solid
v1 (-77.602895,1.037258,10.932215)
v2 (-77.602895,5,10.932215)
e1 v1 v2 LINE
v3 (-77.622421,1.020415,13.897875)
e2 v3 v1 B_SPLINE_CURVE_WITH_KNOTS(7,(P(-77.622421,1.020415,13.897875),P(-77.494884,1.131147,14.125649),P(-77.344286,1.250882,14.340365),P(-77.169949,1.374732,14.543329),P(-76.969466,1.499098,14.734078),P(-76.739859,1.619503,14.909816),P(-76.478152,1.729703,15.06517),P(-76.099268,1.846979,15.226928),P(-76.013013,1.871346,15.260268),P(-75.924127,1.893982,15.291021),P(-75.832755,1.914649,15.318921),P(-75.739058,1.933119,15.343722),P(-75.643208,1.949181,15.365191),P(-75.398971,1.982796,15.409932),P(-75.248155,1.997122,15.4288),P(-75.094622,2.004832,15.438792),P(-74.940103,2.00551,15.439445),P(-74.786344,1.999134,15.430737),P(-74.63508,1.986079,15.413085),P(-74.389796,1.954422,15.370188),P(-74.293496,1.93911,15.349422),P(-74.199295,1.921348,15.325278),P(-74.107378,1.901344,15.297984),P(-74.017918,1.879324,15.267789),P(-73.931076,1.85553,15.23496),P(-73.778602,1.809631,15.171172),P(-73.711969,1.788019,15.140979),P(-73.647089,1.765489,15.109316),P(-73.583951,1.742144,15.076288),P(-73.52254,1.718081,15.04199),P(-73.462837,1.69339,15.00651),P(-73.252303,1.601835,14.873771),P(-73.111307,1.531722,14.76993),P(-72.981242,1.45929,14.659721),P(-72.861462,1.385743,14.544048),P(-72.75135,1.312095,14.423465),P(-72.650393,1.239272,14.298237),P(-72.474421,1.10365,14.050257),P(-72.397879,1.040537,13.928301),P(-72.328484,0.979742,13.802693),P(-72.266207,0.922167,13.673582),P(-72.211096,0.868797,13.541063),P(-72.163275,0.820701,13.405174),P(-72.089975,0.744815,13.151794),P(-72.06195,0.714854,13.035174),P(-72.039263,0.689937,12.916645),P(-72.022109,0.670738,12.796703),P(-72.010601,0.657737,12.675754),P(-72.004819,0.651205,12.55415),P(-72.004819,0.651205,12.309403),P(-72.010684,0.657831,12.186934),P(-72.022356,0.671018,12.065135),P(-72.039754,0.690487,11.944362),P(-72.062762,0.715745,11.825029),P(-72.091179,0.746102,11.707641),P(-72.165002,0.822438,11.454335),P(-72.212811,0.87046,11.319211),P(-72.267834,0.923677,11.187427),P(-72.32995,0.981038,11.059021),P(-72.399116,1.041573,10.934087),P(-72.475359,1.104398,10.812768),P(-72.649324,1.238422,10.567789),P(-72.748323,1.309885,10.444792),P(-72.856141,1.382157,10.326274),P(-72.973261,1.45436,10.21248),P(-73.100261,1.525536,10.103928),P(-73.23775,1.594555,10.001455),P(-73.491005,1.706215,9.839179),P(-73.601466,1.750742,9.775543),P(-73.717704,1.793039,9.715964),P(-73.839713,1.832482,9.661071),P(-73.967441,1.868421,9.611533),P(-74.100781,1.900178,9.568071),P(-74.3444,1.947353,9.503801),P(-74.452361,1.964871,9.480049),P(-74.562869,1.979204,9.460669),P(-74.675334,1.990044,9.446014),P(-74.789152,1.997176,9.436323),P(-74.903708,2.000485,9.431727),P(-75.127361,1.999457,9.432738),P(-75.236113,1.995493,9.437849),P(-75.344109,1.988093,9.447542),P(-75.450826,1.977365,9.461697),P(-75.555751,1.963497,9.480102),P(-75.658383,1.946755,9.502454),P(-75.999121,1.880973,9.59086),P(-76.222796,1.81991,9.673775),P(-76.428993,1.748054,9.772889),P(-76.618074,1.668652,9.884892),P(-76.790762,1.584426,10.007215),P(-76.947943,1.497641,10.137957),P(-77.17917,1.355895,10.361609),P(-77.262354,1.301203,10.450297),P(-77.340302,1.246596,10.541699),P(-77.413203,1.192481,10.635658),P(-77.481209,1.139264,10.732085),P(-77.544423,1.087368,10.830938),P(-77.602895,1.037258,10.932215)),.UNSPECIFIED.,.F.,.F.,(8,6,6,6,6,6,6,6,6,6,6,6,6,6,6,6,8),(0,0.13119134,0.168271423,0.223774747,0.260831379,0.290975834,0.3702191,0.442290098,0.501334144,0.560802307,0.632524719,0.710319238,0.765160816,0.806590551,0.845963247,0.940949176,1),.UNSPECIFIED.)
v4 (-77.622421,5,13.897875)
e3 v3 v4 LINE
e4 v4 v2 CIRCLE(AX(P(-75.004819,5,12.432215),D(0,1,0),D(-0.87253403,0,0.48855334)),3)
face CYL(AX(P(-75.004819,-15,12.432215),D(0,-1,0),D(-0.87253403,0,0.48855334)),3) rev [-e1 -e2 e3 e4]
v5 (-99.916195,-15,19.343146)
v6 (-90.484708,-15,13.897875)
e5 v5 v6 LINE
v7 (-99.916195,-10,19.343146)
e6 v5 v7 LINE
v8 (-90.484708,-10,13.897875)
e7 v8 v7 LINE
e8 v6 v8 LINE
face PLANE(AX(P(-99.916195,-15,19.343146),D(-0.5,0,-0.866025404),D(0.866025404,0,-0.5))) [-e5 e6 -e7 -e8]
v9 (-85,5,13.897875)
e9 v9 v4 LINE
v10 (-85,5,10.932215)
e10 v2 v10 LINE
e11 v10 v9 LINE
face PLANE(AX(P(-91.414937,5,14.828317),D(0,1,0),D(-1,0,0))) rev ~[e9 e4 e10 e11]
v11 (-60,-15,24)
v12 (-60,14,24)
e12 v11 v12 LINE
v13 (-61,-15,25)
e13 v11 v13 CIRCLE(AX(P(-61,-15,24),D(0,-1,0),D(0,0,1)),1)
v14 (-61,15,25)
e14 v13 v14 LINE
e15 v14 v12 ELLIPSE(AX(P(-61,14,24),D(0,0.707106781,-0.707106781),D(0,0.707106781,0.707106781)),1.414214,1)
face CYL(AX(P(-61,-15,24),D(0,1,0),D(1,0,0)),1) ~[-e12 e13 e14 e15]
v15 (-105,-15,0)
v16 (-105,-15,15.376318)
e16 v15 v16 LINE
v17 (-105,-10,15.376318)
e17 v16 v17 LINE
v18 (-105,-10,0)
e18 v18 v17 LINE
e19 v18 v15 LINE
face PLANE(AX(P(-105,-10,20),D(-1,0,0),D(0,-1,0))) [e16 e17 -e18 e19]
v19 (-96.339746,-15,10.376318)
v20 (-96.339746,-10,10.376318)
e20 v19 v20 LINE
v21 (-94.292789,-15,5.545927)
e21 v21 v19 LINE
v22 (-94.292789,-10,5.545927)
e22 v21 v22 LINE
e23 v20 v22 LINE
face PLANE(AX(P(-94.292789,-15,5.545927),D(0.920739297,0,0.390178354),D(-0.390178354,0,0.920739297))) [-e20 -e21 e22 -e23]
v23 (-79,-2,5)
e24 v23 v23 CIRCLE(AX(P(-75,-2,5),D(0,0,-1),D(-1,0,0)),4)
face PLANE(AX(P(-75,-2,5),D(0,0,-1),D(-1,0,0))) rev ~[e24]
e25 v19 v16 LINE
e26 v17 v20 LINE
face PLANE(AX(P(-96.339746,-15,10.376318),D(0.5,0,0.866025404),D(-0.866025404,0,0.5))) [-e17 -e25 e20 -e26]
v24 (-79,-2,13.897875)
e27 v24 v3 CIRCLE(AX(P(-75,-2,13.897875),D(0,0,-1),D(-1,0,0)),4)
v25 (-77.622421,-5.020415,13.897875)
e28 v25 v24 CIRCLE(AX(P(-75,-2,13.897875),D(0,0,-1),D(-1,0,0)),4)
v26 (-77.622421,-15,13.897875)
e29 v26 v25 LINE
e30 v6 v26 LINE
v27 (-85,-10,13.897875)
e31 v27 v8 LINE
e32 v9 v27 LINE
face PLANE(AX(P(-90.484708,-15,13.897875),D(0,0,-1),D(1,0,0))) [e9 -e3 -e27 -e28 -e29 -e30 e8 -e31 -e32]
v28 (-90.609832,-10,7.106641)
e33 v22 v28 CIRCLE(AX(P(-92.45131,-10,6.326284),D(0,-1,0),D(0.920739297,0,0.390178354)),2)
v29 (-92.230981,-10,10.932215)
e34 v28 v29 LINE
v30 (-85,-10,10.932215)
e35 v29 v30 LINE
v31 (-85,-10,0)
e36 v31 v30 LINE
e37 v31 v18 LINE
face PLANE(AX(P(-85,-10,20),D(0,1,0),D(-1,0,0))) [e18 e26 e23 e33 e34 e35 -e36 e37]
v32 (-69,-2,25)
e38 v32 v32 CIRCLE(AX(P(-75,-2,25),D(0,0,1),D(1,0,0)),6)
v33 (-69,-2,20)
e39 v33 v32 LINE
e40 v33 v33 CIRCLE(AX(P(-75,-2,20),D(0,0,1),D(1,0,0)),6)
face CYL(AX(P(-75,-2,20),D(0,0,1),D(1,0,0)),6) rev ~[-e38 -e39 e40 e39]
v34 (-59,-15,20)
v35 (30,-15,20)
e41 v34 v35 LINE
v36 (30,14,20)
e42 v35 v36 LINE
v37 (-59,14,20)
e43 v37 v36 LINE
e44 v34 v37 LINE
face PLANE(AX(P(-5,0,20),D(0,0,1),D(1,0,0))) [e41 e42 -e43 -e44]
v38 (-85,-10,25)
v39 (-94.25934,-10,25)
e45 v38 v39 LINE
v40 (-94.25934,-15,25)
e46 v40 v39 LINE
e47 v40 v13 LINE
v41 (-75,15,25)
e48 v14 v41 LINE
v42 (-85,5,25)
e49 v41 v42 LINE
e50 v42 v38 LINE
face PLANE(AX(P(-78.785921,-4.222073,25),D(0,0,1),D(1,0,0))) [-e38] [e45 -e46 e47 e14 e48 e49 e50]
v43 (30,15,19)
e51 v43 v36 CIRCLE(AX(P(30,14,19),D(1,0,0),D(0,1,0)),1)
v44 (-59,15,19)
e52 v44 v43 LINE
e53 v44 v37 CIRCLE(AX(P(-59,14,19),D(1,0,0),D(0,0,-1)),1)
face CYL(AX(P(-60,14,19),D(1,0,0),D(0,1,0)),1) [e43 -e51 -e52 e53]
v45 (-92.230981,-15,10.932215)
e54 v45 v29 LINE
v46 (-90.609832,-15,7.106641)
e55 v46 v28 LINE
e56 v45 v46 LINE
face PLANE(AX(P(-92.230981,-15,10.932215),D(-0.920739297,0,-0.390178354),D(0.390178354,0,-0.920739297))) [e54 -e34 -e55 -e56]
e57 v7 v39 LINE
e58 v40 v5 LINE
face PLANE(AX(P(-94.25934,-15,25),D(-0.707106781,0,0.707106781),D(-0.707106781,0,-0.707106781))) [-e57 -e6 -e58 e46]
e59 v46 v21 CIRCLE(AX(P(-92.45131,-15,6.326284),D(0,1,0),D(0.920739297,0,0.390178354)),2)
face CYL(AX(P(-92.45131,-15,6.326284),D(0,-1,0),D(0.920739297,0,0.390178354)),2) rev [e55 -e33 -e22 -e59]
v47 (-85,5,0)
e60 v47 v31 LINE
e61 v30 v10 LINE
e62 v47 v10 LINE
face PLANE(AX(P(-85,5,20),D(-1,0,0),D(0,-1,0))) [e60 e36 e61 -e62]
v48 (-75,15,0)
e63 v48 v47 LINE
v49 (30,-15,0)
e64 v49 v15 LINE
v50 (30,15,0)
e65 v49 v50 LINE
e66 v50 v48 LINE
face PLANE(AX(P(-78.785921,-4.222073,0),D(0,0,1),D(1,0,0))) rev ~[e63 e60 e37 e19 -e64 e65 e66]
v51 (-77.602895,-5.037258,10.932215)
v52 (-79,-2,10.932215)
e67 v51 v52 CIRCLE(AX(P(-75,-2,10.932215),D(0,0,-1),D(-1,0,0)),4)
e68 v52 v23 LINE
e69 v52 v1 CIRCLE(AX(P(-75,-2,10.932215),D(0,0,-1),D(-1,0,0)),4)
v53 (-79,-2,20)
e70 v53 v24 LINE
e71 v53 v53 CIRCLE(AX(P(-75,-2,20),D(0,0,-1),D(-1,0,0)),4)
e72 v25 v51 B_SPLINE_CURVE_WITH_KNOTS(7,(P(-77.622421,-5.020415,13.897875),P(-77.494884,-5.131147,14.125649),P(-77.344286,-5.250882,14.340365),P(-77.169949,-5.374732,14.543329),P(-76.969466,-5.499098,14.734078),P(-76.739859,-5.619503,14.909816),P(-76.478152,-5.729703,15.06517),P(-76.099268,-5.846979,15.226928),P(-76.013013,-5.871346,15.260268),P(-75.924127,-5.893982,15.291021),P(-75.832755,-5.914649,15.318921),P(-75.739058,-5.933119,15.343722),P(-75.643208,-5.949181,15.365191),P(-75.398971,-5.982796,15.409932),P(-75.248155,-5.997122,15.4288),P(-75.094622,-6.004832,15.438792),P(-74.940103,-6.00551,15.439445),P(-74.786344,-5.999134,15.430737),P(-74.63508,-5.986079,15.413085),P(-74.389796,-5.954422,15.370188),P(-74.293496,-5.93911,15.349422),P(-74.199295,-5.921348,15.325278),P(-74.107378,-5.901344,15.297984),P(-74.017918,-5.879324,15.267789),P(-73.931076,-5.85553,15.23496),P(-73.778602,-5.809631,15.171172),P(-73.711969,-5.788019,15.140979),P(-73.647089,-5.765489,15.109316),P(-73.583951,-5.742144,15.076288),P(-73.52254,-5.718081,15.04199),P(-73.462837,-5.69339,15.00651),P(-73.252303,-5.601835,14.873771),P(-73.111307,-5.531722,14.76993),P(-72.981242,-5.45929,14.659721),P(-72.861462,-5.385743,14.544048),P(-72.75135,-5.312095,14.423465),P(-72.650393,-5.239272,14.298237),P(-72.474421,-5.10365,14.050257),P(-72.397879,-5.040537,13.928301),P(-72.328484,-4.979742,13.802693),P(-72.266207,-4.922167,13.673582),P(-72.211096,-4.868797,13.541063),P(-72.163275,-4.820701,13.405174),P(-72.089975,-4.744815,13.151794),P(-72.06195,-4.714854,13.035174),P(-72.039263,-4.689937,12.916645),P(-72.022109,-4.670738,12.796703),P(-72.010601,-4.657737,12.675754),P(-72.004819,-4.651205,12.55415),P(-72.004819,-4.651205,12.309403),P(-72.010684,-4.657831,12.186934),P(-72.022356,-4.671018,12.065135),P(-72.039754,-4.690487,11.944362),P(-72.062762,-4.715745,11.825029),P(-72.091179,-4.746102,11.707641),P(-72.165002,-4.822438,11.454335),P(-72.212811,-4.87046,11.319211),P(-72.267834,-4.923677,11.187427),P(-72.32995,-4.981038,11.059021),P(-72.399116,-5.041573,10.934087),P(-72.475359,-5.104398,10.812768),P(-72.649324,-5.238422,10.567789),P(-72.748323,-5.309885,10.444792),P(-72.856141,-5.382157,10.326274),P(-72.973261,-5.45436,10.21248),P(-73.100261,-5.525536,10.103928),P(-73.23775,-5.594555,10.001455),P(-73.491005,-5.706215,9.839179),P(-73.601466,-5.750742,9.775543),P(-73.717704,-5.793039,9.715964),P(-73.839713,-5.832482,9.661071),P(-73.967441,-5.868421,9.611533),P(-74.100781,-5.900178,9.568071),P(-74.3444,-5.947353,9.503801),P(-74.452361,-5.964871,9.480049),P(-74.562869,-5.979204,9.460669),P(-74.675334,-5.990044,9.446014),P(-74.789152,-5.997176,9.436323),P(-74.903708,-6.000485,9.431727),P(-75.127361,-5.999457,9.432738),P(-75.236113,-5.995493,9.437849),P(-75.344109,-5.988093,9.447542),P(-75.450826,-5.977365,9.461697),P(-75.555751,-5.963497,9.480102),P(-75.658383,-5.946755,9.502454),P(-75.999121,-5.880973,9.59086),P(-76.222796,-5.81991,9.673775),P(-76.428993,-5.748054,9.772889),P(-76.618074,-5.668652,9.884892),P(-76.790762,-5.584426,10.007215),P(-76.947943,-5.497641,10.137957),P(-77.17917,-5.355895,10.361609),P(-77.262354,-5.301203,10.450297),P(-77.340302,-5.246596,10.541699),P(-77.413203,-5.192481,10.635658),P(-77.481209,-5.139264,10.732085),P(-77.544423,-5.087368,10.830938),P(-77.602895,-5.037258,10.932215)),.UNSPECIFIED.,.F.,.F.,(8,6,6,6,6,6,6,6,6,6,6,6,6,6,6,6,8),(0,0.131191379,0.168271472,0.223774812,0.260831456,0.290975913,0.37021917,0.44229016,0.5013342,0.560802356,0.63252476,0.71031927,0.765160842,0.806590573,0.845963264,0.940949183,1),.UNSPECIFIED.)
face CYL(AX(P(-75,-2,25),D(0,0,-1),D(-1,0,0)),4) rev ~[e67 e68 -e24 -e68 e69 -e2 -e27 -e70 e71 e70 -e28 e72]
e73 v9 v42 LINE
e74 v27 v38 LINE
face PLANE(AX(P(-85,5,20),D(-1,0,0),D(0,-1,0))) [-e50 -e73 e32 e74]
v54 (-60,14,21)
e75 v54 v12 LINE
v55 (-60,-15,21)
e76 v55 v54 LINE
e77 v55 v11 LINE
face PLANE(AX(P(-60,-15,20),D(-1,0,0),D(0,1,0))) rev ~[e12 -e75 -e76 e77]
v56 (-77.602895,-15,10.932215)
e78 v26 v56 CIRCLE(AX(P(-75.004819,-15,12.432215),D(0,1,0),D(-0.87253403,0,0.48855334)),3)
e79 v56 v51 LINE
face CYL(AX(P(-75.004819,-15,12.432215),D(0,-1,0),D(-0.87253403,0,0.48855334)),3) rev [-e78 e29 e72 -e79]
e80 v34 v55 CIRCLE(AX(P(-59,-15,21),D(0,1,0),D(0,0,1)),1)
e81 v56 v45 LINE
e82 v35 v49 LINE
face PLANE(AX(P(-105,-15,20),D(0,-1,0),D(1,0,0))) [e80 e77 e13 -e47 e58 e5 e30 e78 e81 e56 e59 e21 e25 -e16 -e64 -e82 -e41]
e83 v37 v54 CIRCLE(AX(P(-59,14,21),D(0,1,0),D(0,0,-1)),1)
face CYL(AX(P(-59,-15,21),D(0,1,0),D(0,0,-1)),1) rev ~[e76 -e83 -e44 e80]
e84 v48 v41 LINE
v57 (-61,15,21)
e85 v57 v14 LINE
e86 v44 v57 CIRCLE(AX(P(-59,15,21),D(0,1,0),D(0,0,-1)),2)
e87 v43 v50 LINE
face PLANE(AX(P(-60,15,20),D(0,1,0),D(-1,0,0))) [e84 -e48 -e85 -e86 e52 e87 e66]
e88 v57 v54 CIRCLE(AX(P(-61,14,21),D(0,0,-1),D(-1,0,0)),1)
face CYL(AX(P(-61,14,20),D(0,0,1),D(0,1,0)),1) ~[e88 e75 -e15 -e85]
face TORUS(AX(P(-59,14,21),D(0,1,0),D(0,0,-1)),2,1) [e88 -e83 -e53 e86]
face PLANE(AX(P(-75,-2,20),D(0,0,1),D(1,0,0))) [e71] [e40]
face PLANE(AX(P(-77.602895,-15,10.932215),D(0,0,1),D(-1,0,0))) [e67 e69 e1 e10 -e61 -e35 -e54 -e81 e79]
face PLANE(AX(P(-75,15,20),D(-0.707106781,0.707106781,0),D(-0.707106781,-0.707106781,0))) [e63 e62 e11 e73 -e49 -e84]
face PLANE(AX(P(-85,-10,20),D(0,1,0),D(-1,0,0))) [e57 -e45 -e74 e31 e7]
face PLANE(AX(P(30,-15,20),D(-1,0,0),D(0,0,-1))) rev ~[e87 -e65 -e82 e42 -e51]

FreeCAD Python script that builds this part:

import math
import FreeCAD as App
import Part
import Sketcher

V = App.Vector
Q = App.Units.Quantity


def edges_at(feature, points):
    """Names of the edges that pass closest to the given points."""
    edges = feature.Shape.Edges
    near = lambda p: min(range(len(edges)), key=lambda i: edges[i].distToShape(Part.Vertex(*p))[0])
    return sorted({f"Edge{near(p) + 1}" for p in points})


def add_polygon(sketch, points):
    """Adds a closed chain of lines whose ends are joined by coincident constraints."""
    first, n = sketch.GeometryCount, len(points)
    for a, b in zip(points, points[1:] + points[:1]):
        sketch.addGeometry(Part.LineSegment(App.Vector(*a, 0), App.Vector(*b, 0)), False)
    for i in range(n):
        sketch.addConstraint(Sketcher.Constraint("Coincident", first + i, 2, first + (i + 1) % n, 1))

doc = App.newDocument("Part")
body = doc.addObject("PartDesign::Body", "Body")

# Sketch on XY plane
sketch1 = doc.addObject("Sketcher::SketchObject", "Sketch")
body.addObject(sketch1)
sketch1.AttachmentSupport = (doc.XY_Plane, [""])
sketch1.MapMode = "FlatFace"
add_polygon(sketch1, [(-60, 15), (-60, -15), (50, -15), (50, 15)])  # lines 0-3
sketch1.addConstraint([
    Sketcher.Constraint("Vertical", 0),
    Sketcher.Constraint("Horizontal", 1),
    Sketcher.Constraint("Vertical", 2),
    Sketcher.Constraint("Horizontal", 3),
    Sketcher.Constraint("DistanceX", 1, 1, 1, 2, Q("110 mm")),
    Sketcher.Constraint("DistanceY", 0, 2, 0, 1, Q("30 mm")),
    Sketcher.Constraint("DistanceX", 0, 2, -1, 1, Q("60 mm")),
    Sketcher.Constraint("DistanceY", 0, 2, -1, 1, Q("15 mm")),
])
pad1 = doc.addObject("PartDesign::Pad", "Pad")
body.addObject(pad1)
pad1.Profile = sketch1
pad1.Length = 20

# Sketch on XY plane
sketch2 = doc.addObject("Sketcher::SketchObject", "Sketch001")
body.addObject(sketch2)
sketch2.AttachmentSupport = (doc.XY_Plane, [""])
sketch2.MapMode = "FlatFace"
sketch2.AttachmentOffset = App.Placement(V(0, 0, 20), App.Rotation())
add_polygon(sketch2, [(-60, -15), (-60, 15), (-75, 15), (-85, 5), (-85, -10), (-105, -10), (-105, -15)])  # lines 0-6
sketch2.addConstraint([
    Sketcher.Constraint("Vertical", 0),
    Sketcher.Constraint("Horizontal", 1),
    Sketcher.Constraint("Vertical", 3),
    Sketcher.Constraint("Horizontal", 4),
    Sketcher.Constraint("Vertical", 5),
    Sketcher.Constraint("Horizontal", 6),
    Sketcher.Constraint("Equal", 1, 3),
    Sketcher.Constraint("DistanceX", 1, 2, 1, 1, Q("15 mm")),
    Sketcher.Constraint("DistanceX", 4, 2, 4, 1, Q("20 mm")),
    Sketcher.Constraint("DistanceX", 6, 1, 6, 2, Q("45 mm")),
    Sketcher.Constraint("DistanceY", 0, 1, 0, 2, Q("30 mm")),
    Sketcher.Constraint("DistanceY", 5, 2, 5, 1, Q("5 mm")),
    Sketcher.Constraint("DistanceX", 0, 2, -1, 1, Q("60 mm")),
    Sketcher.Constraint("DistanceY", -1, 1, 0, 2, Q("15 mm")),
])
pad2 = doc.addObject("PartDesign::Pad", "Pad001")
body.addObject(pad2)
pad2.Profile = sketch2
pad2.Type = "TwoLengths"
pad2.Length = 5
pad2.Length2 = 20
doc.recompute()

fillet = doc.addObject("PartDesign::Fillet", "Fillet")
body.addObject(fillet)
fillet.Base = (pad2, edges_at(pad2, [
    (-60, 15, 22.5),
    (-60, 0, 25),
    (-60, 0, 20),
    (-5, 15, 20),
]))
fillet.Radius = 1

# Sketch on XZ plane
sketch3 = doc.addObject("Sketcher::SketchObject", "Sketch002")
body.addObject(sketch3)
sketch3.AttachmentSupport = (doc.XZ_Plane, [""])
sketch3.MapMode = "FlatFace"
sketch3.AttachmentOffset = App.Placement(V(0, 0, 15), App.Rotation())
sketch3.addGeometry([
    Part.LineSegment(V(-99.916195, 19.343146, 0), V(-94.25934, 25, 0)),  # 0
    Part.LineSegment(V(-94.25934, 25, 0), V(-105, 25, 0)),  # 1
    Part.LineSegment(V(-105, 25, 0), V(-105, 15.376318, 0)),  # 2
    Part.LineSegment(V(-105, 15.376318, 0), V(-96.339746, 10.376318, 0)),  # 3
    Part.LineSegment(V(-96.339746, 10.376318, 0), V(-94.292789, 5.545927, 0)),  # 4
    Part.ArcOfCircle(Part.Circle(V(-92.45131, 6.326284, 0), V(0, 0, 1), 2), math.radians(-157.034402), math.radians(22.965598)),  # 5
    Part.LineSegment(V(-90.609832, 7.106641, 0), V(-92.230981, 10.932215, 0)),  # 6
    Part.LineSegment(V(-92.230981, 10.932215, 0), V(-77.602895, 10.932215, 0)),  # 7
    Part.ArcOfCircle(Part.Circle(V(-75.004819, 12.432215, 0), V(0, 0, 1), 3), math.radians(-150), math.radians(150.754459)),  # 8
    Part.LineSegment(V(-77.622421, 13.897875, 0), V(-90.484708, 13.897875, 0)),  # 9
    Part.LineSegment(V(-90.484708, 13.897875, 0), V(-99.916195, 19.343146, 0)),  # 10
], False)
sketch3.addConstraint([
    Sketcher.Constraint("Coincident", 0, 2, 1, 1),
    Sketcher.Constraint("Coincident", 1, 2, 2, 1),
    Sketcher.Constraint("Coincident", 2, 2, 3, 1),
    Sketcher.Constraint("Coincident", 3, 2, 4, 1),
    Sketcher.Constraint("Tangent", 4, 2, 5, 1),
    Sketcher.Constraint("Tangent", 5, 2, 6, 1),
    Sketcher.Constraint("Coincident", 6, 2, 7, 1),
    Sketcher.Constraint("Coincident", 7, 2, 8, 1),
    Sketcher.Constraint("Coincident", 8, 2, 9, 1),
    Sketcher.Constraint("Coincident", 9, 2, 10, 1),
    Sketcher.Constraint("Coincident", 10, 2, 0, 1),
    Sketcher.Constraint("Horizontal", 1),
    Sketcher.Constraint("Vertical", 2),
    Sketcher.Constraint("Horizontal", 7),
    Sketcher.Constraint("Horizontal", 9),
    Sketcher.Constraint("Parallel", 4, 6),
    Sketcher.Constraint("Parallel", 3, 10),
    Sketcher.Constraint("Radius", 5, Q("2 mm")),
    Sketcher.Constraint("Radius", 8, Q("3 mm")),
    Sketcher.Constraint("Angle", 0, Q("45 deg")),
    Sketcher.Constraint("Angle", 3, Q("-30 deg")),
    Sketcher.Constraint("Distance", 0, Q("8 mm")),
    Sketcher.Constraint("Distance", 3, Q("10 mm")),
    Sketcher.Constraint("DistanceY", -1, 1, 0, 2, Q("25 mm")),
    Sketcher.Constraint("DistanceX", 1, 2, -1, 1, Q("105 mm")),
    Sketcher.Constraint("DistanceY", 7, 2, 8, 3, Q("1.5 mm")),
    Sketcher.Constraint("DistanceX", 1, 2, 1, 1, Q("10.74066 mm")),
    Sketcher.Constraint("Distance", 4, Q("5.246209 mm")),
    Sketcher.Constraint("DistanceX", 7, 1, 7, 2, Q("14.628087 mm")),
    Sketcher.Constraint("DistanceX", 9, 2, 9, 1, Q("12.862287 mm")),
    Sketcher.Constraint("DistanceY", 2, 2, 2, 1, Q("9.623682 mm")),
    Sketcher.Constraint("DistanceX", 5, 3, -1, 1, Q("92.45131 mm")),
    Sketcher.Constraint("DistanceX", 8, 3, -1, 1, Q("75.004819 mm")),
])
pocket1 = doc.addObject("PartDesign::Pocket", "Pocket")
body.addObject(pocket1)
pocket1.Profile = sketch3
pocket1.Length = 20

# Sketch on XY plane
sketch4 = doc.addObject("Sketcher::SketchObject", "Sketch003")
body.addObject(sketch4)
sketch4.AttachmentSupport = (doc.XY_Plane, [""])
sketch4.MapMode = "FlatFace"
sketch4.AttachmentOffset = App.Placement(V(0, 0, 25), App.Rotation())
sketch4.addGeometry(Part.Circle(V(-75, -2, 0), V(0, 0, 1), 4), False)
sketch4.addConstraint([
    Sketcher.Constraint("Diameter", 0, Q("8 mm")),
    Sketcher.Constraint("DistanceX", 0, 3, -1, 1, Q("75 mm")),
    Sketcher.Constraint("DistanceY", 0, 3, -1, 1, Q("2 mm")),
])
doc.recompute()
hole = doc.addObject("PartDesign::Hole", "Hole")
body.addObject(hole)
hole.Profile = sketch4
hole.ThreadType = "None"
hole.Diameter = 8
hole.DepthType = "Dimension"
hole.Depth = 20
hole.DrillPoint = "Flat"
hole.HoleCutType = "Counterbore"
hole.HoleCutDiameter = 12
hole.HoleCutDepth = 5

# Sketch on XZ plane
sketch5 = doc.addObject("Sketcher::SketchObject", "Sketch004")
body.addObject(sketch5)
sketch5.AttachmentSupport = (doc.XZ_Plane, [""])
sketch5.MapMode = "FlatFace"
sketch5.AttachmentOffset = App.Placement(V(0, 0, 15), App.Rotation())
add_polygon(sketch5, [(50, 0), (50, 20), (30, 20), (30, 0)])  # lines 0-3
sketch5.addConstraint([
    Sketcher.Constraint("Vertical", 0),
    Sketcher.Constraint("Horizontal", 1),
    Sketcher.Constraint("Vertical", 2),
    Sketcher.Constraint("Horizontal", 3),
    Sketcher.Constraint("PointOnObject", 2, 2, -1),
    Sketcher.Constraint("Equal", 3, 0),
    Sketcher.Constraint("DistanceX", 1, 2, 1, 1, Q("20 mm")),
    Sketcher.Constraint("DistanceX", -1, 1, 0, 2, Q("50 mm")),
])
pocket2 = doc.addObject("PartDesign::Pocket", "Pocket001")
body.addObject(pocket2)
pocket2.Profile = sketch5
pocket2.Type = "UpToFirst"

doc.recompute()
